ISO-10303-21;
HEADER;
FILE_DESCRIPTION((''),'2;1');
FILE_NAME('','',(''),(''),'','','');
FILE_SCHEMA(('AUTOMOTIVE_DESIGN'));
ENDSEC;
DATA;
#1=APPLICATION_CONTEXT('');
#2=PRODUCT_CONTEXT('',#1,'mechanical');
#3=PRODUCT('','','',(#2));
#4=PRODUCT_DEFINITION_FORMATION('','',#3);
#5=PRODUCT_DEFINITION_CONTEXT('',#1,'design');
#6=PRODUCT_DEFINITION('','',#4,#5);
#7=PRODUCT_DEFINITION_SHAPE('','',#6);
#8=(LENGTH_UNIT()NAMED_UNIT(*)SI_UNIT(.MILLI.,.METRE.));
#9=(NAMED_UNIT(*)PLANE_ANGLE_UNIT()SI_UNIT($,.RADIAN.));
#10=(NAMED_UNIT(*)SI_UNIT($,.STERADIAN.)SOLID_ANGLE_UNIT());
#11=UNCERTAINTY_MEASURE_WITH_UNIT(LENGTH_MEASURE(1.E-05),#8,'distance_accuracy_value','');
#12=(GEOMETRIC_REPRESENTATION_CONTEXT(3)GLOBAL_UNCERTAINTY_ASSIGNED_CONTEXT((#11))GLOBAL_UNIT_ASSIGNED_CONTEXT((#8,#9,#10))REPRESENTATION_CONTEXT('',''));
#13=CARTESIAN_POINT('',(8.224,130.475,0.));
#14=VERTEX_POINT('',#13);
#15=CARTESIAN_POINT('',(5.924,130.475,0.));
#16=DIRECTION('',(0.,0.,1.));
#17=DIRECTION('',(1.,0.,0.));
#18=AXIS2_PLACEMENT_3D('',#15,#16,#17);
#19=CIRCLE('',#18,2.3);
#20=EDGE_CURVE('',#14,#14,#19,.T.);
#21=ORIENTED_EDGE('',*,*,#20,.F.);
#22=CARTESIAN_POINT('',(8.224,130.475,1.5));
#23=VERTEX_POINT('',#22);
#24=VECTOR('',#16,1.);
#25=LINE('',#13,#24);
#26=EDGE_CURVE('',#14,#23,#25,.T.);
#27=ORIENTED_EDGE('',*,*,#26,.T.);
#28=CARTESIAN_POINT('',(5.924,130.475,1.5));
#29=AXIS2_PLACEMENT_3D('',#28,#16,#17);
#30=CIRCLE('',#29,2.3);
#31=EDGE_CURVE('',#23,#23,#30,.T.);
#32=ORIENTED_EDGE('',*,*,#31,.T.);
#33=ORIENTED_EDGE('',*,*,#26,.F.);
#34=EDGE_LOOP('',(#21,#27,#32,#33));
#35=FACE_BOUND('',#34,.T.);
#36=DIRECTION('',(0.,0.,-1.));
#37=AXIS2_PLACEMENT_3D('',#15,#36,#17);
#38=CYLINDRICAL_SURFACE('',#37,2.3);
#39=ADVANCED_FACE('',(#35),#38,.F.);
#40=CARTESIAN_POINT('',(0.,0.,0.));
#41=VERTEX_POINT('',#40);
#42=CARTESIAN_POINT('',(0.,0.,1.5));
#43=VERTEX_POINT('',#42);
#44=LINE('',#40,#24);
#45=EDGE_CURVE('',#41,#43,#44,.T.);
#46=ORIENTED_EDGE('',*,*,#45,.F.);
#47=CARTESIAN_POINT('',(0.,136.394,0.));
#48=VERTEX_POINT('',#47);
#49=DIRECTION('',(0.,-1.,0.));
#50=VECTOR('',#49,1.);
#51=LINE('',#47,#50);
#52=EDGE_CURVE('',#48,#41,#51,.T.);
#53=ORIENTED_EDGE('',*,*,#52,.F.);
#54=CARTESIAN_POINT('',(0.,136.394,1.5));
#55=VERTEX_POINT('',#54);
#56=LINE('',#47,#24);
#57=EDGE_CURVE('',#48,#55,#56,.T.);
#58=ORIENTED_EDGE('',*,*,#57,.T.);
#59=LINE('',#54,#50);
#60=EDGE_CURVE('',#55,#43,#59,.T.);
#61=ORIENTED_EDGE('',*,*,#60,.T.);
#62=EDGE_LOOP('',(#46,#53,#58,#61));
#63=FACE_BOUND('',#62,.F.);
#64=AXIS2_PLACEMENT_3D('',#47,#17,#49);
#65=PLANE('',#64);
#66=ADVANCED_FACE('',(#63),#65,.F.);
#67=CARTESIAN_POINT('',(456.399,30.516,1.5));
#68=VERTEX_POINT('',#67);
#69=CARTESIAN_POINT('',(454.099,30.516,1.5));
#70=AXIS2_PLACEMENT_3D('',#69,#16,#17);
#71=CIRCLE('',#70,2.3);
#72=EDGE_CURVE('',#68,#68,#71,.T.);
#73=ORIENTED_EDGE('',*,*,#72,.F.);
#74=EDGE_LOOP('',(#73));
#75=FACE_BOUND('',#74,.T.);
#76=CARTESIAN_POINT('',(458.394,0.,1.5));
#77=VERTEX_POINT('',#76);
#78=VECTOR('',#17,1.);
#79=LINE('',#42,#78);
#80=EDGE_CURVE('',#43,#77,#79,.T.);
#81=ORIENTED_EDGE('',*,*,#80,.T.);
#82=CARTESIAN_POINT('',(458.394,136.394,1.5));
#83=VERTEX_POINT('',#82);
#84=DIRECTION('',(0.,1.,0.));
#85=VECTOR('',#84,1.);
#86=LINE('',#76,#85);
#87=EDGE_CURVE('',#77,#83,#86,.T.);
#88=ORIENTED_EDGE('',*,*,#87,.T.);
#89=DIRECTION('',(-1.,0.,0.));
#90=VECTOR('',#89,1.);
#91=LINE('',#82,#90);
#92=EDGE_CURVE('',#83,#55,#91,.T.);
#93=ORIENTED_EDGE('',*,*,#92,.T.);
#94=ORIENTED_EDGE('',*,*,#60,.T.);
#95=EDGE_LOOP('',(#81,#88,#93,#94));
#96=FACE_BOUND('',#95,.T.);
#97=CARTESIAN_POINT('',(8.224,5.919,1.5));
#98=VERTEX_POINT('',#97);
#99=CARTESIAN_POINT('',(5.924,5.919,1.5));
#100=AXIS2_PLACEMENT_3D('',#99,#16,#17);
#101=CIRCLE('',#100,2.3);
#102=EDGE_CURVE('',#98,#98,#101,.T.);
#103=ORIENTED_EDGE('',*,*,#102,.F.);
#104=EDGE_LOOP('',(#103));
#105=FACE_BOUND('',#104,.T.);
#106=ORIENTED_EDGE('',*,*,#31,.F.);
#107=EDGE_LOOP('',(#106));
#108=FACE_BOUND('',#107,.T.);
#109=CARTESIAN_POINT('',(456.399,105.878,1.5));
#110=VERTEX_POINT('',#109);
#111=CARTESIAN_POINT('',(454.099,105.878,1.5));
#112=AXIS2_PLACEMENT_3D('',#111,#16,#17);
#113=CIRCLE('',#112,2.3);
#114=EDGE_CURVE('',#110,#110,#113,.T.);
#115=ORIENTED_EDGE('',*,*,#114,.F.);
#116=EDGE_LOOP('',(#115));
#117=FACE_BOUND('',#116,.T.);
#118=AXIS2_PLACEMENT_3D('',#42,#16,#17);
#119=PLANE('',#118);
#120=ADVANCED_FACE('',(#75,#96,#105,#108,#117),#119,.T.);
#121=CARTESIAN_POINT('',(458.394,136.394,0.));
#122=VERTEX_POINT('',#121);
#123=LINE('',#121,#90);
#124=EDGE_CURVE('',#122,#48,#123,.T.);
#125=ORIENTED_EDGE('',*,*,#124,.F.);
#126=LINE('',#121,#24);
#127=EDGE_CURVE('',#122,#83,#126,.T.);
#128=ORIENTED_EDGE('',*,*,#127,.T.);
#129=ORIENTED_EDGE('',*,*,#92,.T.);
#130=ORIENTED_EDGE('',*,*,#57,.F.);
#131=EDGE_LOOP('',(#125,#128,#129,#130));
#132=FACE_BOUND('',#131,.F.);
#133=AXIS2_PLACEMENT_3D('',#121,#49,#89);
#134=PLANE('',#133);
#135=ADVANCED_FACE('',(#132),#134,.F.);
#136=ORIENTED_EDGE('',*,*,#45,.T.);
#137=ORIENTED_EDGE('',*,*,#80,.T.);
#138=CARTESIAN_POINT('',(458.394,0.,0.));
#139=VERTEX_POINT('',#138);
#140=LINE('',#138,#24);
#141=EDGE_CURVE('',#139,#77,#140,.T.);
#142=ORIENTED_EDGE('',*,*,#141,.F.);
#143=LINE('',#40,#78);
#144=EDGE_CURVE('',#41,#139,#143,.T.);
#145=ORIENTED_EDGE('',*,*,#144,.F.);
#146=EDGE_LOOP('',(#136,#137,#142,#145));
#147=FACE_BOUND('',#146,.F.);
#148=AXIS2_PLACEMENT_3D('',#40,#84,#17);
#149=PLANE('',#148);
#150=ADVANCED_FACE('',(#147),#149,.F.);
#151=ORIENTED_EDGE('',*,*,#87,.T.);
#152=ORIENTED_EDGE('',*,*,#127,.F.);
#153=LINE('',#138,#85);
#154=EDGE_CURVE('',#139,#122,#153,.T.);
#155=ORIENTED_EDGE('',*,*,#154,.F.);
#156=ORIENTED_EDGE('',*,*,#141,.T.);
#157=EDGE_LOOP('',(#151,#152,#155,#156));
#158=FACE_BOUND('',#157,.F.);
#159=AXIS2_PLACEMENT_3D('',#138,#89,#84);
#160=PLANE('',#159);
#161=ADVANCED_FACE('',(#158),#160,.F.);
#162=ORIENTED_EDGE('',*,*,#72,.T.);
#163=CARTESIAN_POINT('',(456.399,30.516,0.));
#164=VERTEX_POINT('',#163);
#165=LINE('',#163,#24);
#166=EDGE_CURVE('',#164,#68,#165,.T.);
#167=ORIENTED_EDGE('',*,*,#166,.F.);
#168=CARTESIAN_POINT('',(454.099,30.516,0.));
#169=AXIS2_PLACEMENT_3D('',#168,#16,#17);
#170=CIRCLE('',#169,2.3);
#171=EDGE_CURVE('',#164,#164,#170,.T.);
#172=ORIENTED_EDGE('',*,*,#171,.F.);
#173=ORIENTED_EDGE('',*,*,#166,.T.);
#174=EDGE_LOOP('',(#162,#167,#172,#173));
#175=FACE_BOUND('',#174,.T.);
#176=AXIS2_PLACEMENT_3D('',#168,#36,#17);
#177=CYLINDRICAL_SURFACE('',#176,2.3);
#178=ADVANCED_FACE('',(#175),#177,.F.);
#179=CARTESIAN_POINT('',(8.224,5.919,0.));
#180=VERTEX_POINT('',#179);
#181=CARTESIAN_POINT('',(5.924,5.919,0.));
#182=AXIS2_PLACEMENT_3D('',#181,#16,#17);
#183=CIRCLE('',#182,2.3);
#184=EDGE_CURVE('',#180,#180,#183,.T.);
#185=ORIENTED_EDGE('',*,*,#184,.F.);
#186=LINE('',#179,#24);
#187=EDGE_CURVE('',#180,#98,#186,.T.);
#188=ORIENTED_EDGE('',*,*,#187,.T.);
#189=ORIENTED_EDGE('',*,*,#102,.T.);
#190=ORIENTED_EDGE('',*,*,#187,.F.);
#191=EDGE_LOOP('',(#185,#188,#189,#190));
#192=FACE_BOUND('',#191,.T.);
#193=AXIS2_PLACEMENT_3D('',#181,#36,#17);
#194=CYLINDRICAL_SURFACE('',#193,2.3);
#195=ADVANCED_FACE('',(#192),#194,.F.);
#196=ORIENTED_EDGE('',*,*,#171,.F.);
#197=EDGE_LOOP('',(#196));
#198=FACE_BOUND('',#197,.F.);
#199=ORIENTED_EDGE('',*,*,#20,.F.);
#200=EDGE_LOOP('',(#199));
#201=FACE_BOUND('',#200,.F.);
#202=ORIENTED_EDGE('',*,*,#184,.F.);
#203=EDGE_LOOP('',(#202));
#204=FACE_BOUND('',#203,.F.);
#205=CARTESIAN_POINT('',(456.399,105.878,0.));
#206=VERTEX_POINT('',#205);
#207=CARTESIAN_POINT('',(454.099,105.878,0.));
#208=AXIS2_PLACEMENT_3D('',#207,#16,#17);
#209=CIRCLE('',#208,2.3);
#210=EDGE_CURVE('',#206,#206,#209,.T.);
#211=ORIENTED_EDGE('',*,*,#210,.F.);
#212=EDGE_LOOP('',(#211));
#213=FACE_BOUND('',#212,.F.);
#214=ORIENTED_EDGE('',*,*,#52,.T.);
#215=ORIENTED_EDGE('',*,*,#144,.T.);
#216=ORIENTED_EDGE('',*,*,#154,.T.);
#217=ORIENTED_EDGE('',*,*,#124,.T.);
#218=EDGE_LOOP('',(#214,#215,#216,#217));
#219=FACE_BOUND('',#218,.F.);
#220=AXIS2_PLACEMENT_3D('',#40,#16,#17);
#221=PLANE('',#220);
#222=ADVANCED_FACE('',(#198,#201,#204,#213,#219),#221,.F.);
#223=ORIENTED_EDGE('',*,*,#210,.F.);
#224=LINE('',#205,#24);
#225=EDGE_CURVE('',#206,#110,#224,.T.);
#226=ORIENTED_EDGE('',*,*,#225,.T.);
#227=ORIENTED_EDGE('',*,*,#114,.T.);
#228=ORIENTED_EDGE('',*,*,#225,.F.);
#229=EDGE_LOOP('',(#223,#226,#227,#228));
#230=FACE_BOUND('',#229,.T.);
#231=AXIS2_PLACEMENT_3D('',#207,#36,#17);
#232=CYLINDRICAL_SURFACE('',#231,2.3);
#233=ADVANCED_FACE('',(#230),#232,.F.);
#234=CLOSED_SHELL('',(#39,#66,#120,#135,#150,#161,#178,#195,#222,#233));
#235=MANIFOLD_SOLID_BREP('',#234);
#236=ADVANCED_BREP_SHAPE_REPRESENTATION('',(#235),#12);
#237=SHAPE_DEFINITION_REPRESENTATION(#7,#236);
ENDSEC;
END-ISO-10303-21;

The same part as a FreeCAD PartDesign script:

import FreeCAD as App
import Part
import Sketcher


def add_polygon(sketch, points):
    """Adds a closed chain of lines whose ends are joined by coincident constraints."""
    first, n = sketch.GeometryCount, len(points)
    for a, b in zip(points, points[1:] + points[:1]):
        sketch.addGeometry(Part.LineSegment(App.Vector(*a, 0), App.Vector(*b, 0)), False)
    for i in range(n):
        sketch.addConstraint(Sketcher.Constraint("Coincident", first + i, 2, first + (i + 1) % n, 1))

doc = App.newDocument("Part")
body = doc.addObject("PartDesign::Body", "Body")

sketch1 = body.newObject("Sketcher::SketchObject", "Sketch")
sketch1.AttachmentSupport = (doc.getObject("XY_Plane"), [""])
sketch1.MapMode = "FlatFace"
add_polygon(sketch1, [(0, 136.4), (0, 0), (458.4, 0), (458.4, 136.4)])
sketch1.addGeometry(Part.Circle(App.Vector(5.9, 5.9, 0), App.Vector(0, 0, 1), 2.3), False)
sketch1.addGeometry(Part.Circle(App.Vector(454.1, 30.5, 0), App.Vector(0, 0, 1), 2.3), False)
sketch1.addGeometry(Part.Circle(App.Vector(5.9, 130.5, 0), App.Vector(0, 0, 1), 2.3), False)
sketch1.addGeometry(Part.Circle(App.Vector(454.1, 105.9, 0), App.Vector(0, 0, 1), 2.3), False)
sketch1.addConstraint(Sketcher.Constraint("Vertical", 0))
sketch1.addConstraint(Sketcher.Constraint("Horizontal", 1))
sketch1.addConstraint(Sketcher.Constraint("Vertical", 2))
sketch1.addConstraint(Sketcher.Constraint("Horizontal", 3))
sketch1.addConstraint(Sketcher.Constraint("Coincident", 0, 2, -1, 1))
sketch1.addConstraint(Sketcher.Constraint("Equal", 4, 5))
sketch1.addConstraint(Sketcher.Constraint("Equal", 5, 6))
sketch1.addConstraint(Sketcher.Constraint("Equal", 6, 7))
sketch1.addConstraint(Sketcher.Constraint("Vertical", 4, 3, 6, 3))
sketch1.addConstraint(Sketcher.Constraint("Vertical", 5, 3, 7, 3))
sketch1.addConstraint(Sketcher.Constraint("Diameter", 4, 4.6))
sketch1.addConstraint(Sketcher.Constraint("DistanceX", 1, 1, 1, 2, 458.394))
sketch1.addConstraint(Sketcher.Constraint("DistanceY", 0, 2, 0, 1, 136.394))
sketch1.addConstraint(Sketcher.Constraint("DistanceX", -1, 1, 4, 3, 5.924))
sketch1.addConstraint(Sketcher.Constraint("DistanceY", -1, 1, 4, 3, 5.919))
sketch1.addConstraint(Sketcher.Constraint("DistanceY", -1, 1, 5, 3, 30.516))
sketch1.addConstraint(Sketcher.Constraint("DistanceX", 5, 3, 1, 2, 4.295))
sketch1.addConstraint(Sketcher.Constraint("DistanceY", 7, 3, 2, 2, 30.516))
sketch1.addConstraint(Sketcher.Constraint("DistanceY", 6, 3, 2, 2, 5.919))
pad1 = body.newObject("PartDesign::Pad", "Pad")
pad1.Profile = sketch1
pad1.Length = 1.5

doc.recompute()
